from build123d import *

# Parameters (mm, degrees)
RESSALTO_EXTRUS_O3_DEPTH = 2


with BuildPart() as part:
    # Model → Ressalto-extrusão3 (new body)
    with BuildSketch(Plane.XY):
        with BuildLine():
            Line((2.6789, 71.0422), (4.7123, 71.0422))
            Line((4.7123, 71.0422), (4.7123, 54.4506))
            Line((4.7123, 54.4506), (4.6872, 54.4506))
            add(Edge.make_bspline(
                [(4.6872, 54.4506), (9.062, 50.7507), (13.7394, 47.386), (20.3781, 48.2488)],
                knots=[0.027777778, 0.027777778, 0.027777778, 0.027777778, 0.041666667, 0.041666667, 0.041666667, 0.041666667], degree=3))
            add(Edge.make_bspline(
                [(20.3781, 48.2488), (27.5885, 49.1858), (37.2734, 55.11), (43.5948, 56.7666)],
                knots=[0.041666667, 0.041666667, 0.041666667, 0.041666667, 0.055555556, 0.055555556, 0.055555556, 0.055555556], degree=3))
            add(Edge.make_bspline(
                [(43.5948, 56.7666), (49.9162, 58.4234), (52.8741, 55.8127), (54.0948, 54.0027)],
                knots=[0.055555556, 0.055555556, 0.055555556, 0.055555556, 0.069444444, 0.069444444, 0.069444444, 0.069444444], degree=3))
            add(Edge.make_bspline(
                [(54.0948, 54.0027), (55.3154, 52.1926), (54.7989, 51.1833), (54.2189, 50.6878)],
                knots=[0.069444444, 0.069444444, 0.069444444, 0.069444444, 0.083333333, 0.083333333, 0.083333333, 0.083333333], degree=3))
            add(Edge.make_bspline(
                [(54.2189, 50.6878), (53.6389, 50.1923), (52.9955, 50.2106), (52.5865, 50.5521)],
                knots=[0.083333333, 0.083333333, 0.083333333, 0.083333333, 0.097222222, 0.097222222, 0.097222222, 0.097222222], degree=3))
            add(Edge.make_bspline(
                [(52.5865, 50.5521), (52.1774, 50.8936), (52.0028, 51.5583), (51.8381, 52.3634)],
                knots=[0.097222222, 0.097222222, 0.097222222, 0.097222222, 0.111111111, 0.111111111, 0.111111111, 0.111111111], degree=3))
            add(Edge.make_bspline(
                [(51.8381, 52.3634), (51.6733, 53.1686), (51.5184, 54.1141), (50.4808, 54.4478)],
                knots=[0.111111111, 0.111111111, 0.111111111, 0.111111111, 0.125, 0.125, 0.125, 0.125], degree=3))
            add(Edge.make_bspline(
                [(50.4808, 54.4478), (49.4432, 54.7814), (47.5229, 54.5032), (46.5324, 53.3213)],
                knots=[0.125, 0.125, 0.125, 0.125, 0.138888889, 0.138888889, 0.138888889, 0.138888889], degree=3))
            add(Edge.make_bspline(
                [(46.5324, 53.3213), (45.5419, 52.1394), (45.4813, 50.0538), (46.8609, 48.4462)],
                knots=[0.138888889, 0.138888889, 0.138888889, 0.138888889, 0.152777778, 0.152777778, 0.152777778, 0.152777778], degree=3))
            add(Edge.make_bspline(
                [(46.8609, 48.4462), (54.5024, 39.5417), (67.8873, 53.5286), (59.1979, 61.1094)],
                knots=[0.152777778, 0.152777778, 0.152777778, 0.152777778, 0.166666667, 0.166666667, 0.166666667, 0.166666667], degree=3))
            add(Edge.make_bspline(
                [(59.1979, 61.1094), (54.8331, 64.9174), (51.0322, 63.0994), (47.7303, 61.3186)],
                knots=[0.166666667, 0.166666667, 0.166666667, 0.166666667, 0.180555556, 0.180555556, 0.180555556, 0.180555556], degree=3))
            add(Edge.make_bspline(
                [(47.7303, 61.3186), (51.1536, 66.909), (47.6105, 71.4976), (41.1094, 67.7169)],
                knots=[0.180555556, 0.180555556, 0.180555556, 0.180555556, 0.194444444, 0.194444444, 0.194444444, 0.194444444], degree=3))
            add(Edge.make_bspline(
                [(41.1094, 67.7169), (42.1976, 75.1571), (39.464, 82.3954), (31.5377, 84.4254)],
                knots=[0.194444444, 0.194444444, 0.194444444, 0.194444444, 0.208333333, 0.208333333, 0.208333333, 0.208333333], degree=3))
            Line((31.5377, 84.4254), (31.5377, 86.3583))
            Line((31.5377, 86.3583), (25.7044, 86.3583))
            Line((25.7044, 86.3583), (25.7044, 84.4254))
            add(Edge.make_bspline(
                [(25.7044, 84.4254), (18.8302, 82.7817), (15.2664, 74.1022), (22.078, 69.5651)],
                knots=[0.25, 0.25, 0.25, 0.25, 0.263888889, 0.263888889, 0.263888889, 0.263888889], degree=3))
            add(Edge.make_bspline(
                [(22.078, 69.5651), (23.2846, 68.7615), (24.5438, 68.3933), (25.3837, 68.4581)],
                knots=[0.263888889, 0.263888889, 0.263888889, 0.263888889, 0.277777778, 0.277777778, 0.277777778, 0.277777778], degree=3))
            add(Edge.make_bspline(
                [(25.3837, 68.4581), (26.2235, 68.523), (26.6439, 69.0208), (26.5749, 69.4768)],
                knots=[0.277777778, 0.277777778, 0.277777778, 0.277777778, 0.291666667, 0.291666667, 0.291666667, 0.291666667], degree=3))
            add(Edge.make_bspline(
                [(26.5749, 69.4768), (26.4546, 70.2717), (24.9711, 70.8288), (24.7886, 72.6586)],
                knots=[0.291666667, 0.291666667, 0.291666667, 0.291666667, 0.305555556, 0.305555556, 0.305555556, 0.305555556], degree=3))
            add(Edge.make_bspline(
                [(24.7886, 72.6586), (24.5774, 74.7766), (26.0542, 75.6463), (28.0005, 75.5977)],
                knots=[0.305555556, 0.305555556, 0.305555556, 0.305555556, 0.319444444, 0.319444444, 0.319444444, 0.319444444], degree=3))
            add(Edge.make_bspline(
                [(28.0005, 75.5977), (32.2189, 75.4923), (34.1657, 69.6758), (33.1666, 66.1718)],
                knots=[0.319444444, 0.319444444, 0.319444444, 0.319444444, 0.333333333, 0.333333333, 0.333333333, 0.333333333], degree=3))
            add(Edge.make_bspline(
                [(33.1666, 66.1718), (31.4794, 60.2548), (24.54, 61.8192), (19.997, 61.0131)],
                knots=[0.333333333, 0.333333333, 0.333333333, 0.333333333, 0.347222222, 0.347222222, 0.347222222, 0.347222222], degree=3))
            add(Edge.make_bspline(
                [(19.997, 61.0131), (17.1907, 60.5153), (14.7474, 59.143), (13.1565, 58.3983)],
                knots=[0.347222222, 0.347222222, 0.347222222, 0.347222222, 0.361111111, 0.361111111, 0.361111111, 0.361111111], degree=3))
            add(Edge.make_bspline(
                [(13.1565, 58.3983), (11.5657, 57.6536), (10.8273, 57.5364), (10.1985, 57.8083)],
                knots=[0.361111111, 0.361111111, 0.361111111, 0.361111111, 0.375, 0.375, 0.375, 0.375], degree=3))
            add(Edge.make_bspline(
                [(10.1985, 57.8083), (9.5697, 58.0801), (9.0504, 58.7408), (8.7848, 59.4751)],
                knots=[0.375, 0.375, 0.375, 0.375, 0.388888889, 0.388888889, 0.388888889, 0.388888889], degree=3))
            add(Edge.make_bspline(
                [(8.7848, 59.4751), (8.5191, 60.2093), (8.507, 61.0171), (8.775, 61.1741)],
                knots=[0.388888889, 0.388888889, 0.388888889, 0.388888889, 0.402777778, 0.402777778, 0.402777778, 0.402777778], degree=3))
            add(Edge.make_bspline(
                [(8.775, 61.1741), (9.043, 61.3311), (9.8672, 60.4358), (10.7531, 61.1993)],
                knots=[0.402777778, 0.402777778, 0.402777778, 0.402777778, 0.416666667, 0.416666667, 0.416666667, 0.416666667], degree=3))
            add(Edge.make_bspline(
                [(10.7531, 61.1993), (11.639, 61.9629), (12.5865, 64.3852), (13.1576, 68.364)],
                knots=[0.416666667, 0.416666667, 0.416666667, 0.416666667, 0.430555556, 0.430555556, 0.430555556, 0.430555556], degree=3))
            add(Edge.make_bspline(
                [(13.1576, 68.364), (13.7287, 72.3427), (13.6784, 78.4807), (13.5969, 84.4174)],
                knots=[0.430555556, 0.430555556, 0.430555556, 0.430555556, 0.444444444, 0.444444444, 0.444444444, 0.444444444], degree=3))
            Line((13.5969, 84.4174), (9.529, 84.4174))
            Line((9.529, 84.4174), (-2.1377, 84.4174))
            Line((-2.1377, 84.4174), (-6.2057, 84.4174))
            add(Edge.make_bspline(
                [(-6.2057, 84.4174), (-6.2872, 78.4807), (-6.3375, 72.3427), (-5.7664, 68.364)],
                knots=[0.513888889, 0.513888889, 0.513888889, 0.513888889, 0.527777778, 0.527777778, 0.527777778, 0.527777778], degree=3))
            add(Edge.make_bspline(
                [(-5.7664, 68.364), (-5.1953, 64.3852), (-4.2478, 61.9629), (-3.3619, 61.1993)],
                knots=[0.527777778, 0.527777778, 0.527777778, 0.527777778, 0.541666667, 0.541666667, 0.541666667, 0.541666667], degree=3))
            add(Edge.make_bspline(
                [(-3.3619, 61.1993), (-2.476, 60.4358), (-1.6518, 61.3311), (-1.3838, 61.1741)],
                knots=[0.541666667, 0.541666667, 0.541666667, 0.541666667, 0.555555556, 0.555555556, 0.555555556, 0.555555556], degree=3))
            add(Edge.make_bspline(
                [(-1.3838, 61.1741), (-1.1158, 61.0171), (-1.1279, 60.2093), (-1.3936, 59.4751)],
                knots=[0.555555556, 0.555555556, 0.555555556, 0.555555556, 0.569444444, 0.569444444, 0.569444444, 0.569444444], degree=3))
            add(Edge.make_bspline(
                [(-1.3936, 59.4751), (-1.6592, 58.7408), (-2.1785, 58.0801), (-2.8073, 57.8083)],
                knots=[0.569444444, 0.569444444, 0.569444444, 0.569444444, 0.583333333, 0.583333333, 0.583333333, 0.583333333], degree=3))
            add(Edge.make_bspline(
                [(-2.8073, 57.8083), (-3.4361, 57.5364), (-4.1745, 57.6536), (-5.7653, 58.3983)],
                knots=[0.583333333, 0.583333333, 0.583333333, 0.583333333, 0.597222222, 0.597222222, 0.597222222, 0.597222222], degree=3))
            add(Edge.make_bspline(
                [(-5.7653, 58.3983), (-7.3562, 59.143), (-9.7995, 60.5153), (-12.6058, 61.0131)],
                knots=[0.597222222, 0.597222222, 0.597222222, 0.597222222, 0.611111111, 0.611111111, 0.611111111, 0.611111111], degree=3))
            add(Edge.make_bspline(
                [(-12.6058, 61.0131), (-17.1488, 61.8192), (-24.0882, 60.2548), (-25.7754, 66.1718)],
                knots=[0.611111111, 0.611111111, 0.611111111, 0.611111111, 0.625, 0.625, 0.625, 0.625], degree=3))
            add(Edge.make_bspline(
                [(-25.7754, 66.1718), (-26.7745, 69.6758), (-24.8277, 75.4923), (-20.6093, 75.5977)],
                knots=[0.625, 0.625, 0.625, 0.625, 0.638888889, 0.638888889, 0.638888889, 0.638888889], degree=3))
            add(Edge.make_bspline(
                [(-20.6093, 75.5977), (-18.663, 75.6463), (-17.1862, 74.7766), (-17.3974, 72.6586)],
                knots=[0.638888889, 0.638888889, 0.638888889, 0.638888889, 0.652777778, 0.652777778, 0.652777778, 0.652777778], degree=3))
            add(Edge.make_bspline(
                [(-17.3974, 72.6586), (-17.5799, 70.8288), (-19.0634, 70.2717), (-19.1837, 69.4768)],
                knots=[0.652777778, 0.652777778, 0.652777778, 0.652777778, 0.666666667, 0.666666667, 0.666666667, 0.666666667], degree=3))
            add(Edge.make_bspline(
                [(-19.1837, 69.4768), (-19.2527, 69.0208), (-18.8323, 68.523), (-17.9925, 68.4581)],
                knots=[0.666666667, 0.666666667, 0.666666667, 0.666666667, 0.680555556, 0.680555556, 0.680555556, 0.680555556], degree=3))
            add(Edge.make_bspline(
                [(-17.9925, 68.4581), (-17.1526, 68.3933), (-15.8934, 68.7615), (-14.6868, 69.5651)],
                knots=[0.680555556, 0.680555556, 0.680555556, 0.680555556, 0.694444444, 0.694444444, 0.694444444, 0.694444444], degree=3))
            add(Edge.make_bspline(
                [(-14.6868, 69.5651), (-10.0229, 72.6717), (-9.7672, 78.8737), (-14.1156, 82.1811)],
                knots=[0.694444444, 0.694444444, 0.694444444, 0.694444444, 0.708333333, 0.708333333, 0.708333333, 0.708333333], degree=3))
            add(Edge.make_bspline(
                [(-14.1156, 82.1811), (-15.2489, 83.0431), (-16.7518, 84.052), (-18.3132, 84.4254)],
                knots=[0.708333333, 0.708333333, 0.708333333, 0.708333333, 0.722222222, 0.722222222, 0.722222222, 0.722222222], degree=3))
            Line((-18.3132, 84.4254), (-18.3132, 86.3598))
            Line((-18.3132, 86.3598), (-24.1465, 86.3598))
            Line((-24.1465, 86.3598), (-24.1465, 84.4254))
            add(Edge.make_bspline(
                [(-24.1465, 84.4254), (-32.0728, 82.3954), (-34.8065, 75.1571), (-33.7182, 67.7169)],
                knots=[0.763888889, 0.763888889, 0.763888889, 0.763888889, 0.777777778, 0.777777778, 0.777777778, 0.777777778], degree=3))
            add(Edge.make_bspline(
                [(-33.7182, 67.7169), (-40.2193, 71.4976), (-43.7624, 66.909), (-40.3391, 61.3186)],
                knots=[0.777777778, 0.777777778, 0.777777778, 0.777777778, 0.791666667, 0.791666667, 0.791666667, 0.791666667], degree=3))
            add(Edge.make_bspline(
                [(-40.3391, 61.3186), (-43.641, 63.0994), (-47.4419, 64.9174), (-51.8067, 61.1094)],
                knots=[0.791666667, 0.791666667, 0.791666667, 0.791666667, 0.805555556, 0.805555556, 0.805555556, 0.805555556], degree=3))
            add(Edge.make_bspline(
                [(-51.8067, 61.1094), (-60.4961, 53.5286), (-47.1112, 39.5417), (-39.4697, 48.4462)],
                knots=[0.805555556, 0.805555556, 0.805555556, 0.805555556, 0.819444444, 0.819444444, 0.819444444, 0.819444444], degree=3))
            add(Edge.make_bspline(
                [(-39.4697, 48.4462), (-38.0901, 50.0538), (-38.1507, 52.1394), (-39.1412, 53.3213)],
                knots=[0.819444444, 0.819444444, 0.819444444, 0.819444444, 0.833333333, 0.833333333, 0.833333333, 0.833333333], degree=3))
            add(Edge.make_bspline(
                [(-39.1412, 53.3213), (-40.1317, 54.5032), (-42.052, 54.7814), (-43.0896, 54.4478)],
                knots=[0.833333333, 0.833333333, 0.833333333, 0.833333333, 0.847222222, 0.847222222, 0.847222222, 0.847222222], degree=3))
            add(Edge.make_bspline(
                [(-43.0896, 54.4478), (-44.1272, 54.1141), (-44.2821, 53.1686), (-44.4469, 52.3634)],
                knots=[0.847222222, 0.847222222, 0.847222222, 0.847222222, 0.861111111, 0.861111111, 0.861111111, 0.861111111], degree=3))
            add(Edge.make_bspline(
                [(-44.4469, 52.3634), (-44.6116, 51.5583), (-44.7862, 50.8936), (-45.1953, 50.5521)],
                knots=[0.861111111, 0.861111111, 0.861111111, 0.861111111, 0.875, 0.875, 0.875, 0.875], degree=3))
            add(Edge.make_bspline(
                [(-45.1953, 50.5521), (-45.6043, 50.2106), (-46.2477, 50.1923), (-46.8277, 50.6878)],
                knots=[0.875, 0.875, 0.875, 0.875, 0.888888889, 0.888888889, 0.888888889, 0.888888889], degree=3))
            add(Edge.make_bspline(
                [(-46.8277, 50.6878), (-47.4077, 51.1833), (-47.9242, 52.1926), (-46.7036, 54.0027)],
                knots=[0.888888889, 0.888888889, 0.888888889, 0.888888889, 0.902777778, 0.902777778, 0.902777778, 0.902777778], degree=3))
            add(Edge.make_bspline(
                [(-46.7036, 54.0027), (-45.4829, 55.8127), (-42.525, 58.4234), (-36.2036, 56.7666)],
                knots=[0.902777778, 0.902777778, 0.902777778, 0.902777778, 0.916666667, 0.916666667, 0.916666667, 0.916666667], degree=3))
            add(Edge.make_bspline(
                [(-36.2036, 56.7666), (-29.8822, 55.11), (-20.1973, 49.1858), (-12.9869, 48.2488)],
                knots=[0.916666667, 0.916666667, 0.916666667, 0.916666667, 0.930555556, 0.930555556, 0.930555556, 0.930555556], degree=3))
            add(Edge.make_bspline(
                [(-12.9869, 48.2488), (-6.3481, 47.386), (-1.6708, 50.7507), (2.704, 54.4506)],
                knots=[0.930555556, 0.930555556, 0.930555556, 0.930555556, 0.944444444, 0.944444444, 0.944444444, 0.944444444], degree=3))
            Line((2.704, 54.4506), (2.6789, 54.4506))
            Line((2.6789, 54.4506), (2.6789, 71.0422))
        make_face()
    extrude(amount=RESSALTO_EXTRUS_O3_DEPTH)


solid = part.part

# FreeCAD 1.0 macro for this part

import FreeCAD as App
import Part
import Sketcher
from FreeCAD import Vector
Q = App.Units.Quantity

doc = App.newDocument("Part")
body = doc.addObject("PartDesign::Body", "Body")

sketch1 = doc.addObject("Sketcher::SketchObject", "Sketch")
body.addObject(sketch1)
sketch1.AttachmentSupport = (doc.XY_Plane, [""])
sketch1.MapMode = "FlatFace"
sketch1.addGeometry([
    Part.LineSegment(Vector(2.6789, 71.0422, 0), Vector(4.7123, 71.0422, 0)),
    Part.LineSegment(Vector(4.7123, 71.0422, 0), Vector(4.7123, 54.4506, 0)),
    Part.LineSegment(Vector(4.7123, 54.4506, 0), Vector(4.6872, 54.4506, 0)),
    Part.BSplineCurve([Vector(4.6872, 54.4506, 0), Vector(9.062, 50.7507, 0), Vector(13.7394, 47.386, 0), Vector(20.3781, 48.2488, 0)], [4, 4], [0.027777778, 0.041666667], False, 3, [1, 1, 1, 1], False),
    Part.BSplineCurve([Vector(20.3781, 48.2488, 0), Vector(27.5885, 49.1858, 0), Vector(37.2734, 55.11, 0), Vector(43.5948, 56.7666, 0)], [4, 4], [0.041666667, 0.055555556], False, 3, [1, 1, 1, 1], False),
    Part.BSplineCurve([Vector(43.5948, 56.7666, 0), Vector(49.9162, 58.4234, 0), Vector(52.8741, 55.8127, 0), Vector(54.0948, 54.0027, 0)], [4, 4], [0.055555556, 0.069444444], False, 3, [1, 1, 1, 1], False),
    Part.BSplineCurve([Vector(54.0948, 54.0027, 0), Vector(55.3154, 52.1926, 0), Vector(54.7989, 51.1833, 0), Vector(53.6389, 50.1923, 0), Vector(52.9955, 50.2106, 0), Vector(52.5865, 50.5521, 0)], [4, 2, 4], [0.069444444, 0.083333333, 0.097222222], False, 3, [1, 1, 1, 1, 1, 1], False),
    Part.BSplineCurve([Vector(52.5865, 50.5521, 0), Vector(52.1774, 50.8936, 0), Vector(52.0028, 51.5583, 0), Vector(51.8381, 52.3634, 0)], [4, 4], [0.097222222, 0.111111111], False, 3, [1, 1, 1, 1], False),
    Part.BSplineCurve([Vector(51.8381, 52.3634, 0), Vector(51.6733, 53.1686, 0), Vector(51.5184, 54.1141, 0), Vector(50.4808, 54.4478, 0)], [4, 4], [0.111111111, 0.125], False, 3, [1, 1, 1, 1], False),
    Part.BSplineCurve([Vector(50.4808, 54.4478, 0), Vector(49.4432, 54.7814, 0), Vector(47.5229, 54.5032, 0), Vector(45.5419, 52.1394, 0), Vector(45.4813, 50.0538, 0), Vector(46.8609, 48.4462, 0)], [4, 2, 4], [0.125, 0.138888889, 0.152777778], False, 3, [1, 1, 1, 1, 1, 1], False),
    Part.BSplineCurve([Vector(46.8609, 48.4462, 0), Vector(54.5024, 39.5417, 0), Vector(67.8873, 53.5286, 0), Vector(59.1979, 61.1094, 0)], [4, 4], [0.152777778, 0.166666667], False, 3, [1, 1, 1, 1], False),
    Part.BSplineCurve([Vector(59.1979, 61.1094, 0), Vector(54.8331, 64.9174, 0), Vector(51.0322, 63.0994, 0), Vector(47.7303, 61.3186, 0)], [4, 4], [0.166666667, 0.180555556], False, 3, [1, 1, 1, 1], False),
    Part.BSplineCurve([Vector(47.7303, 61.3186, 0), Vector(51.1536, 66.909, 0), Vector(47.6105, 71.4976, 0), Vector(41.1094, 67.7169, 0)], [4, 4], [0.180555556, 0.194444444], False, 3, [1, 1, 1, 1], False),
    Part.BSplineCurve([Vector(41.1094, 67.7169, 0), Vector(42.1976, 75.1571, 0), Vector(39.464, 82.3954, 0), Vector(31.5377, 84.4254, 0)], [4, 4], [0.194444444, 0.208333333], False, 3, [1, 1, 1, 1], False),
    Part.LineSegment(Vector(31.5377, 84.4254, 0), Vector(31.5377, 86.3583, 0)),
    Part.LineSegment(Vector(31.5377, 86.3583, 0), Vector(25.7044, 86.3583, 0)),
    Part.LineSegment(Vector(25.7044, 86.3583, 0), Vector(25.7044, 84.4254, 0)),
    Part.BSplineCurve([Vector(25.7044, 84.4254, 0), Vector(18.8302, 82.7817, 0), Vector(15.2664, 74.1022, 0), Vector(22.078, 69.5651, 0)], [4, 4], [0.25, 0.263888889], False, 3, [1, 1, 1, 1], False),
    Part.BSplineCurve([Vector(22.078, 69.5651, 0), Vector(23.2846, 68.7615, 0), Vector(24.5438, 68.3933, 0), Vector(25.3837, 68.4581, 0)], [4, 4], [0.263888889, 0.277777778], False, 3, [1, 1, 1, 1], False),
    Part.BSplineCurve([Vector(25.3837, 68.4581, 0), Vector(26.2235, 68.523, 0), Vector(26.6439, 69.0208, 0), Vector(26.5749, 69.4768, 0)], [4, 4], [0.277777778, 0.291666667], False, 3, [1, 1, 1, 1], False),
    Part.BSplineCurve([Vector(26.5749, 69.4768, 0), Vector(26.4546, 70.2717, 0), Vector(24.9711, 70.8288, 0), Vector(24.7886, 72.6586, 0)], [4, 4], [0.291666667, 0.305555556], False, 3, [1, 1, 1, 1], False),
    Part.BSplineCurve([Vector(24.7886, 72.6586, 0), Vector(24.5774, 74.7766, 0), Vector(26.0542, 75.6463, 0), Vector(28.0005, 75.5977, 0)], [4, 4], [0.305555556, 0.319444444], False, 3, [1, 1, 1, 1], False),
    Part.BSplineCurve([Vector(28.0005, 75.5977, 0), Vector(32.2189, 75.4923, 0), Vector(34.1657, 69.6758, 0), Vector(33.1666, 66.1718, 0)], [4, 4], [0.319444444, 0.333333333], False, 3, [1, 1, 1, 1], False),
    Part.BSplineCurve([Vector(33.1666, 66.1718, 0), Vector(31.4794, 60.2548, 0), Vector(24.54, 61.8192, 0), Vector(19.997, 61.0131, 0)], [4, 4], [0.333333333, 0.347222222], False, 3, [1, 1, 1, 1], False),
    Part.BSplineCurve([Vector(19.997, 61.0131, 0), Vector(17.1907, 60.5153, 0), Vector(14.7474, 59.143, 0), Vector(13.1565, 58.3983, 0)], [4, 4], [0.347222222, 0.361111111], False, 3, [1, 1, 1, 1], False),
    Part.BSplineCurve([Vector(13.1565, 58.3983, 0), Vector(11.5657, 57.6536, 0), Vector(10.8273, 57.5364, 0), Vector(10.1985, 57.8083, 0)], [4, 4], [0.361111111, 0.375], False, 3, [1, 1, 1, 1], False),
    Part.BSplineCurve([Vector(10.1985, 57.8083, 0), Vector(9.5697, 58.0801, 0), Vector(9.0504, 58.7408, 0), Vector(8.7848, 59.4751, 0)], [4, 4], [0.375, 0.388888889], False, 3, [1, 1, 1, 1], False),
    Part.BSplineCurve([Vector(8.7848, 59.4751, 0), Vector(8.5191, 60.2093, 0), Vector(8.507, 61.0171, 0), Vector(9.043, 61.3311, 0), Vector(9.8672, 60.4358, 0), Vector(10.7531, 61.1993, 0)], [4, 2, 4], [0.388888889, 0.402777778, 0.416666667], False, 3, [1, 1, 1, 1, 1, 1], False),
    Part.BSplineCurve([Vector(10.7531, 61.1993, 0), Vector(11.639, 61.9629, 0), Vector(12.5865, 64.3852, 0), Vector(13.1576, 68.364, 0)], [4, 4], [0.416666667, 0.430555556], False, 3, [1, 1, 1, 1], False),
    Part.BSplineCurve([Vector(13.1576, 68.364, 0), Vector(13.7287, 72.3427, 0), Vector(13.6784, 78.4807, 0), Vector(13.5969, 84.4174, 0)], [4, 4], [0.430555556, 0.444444444], False, 3, [1, 1, 1, 1], False),
    Part.LineSegment(Vector(13.5969, 84.4174, 0), Vector(-6.2057, 84.4174, 0)),
    Part.BSplineCurve([Vector(-6.2057, 84.4174, 0), Vector(-6.2872, 78.4807, 0), Vector(-6.3375, 72.3427, 0), Vector(-5.7664, 68.364, 0)], [4, 4], [0.513888889, 0.527777778], False, 3, [1, 1, 1, 1], False),
    Part.BSplineCurve([Vector(-5.7664, 68.364, 0), Vector(-5.1953, 64.3852, 0), Vector(-4.2478, 61.9629, 0), Vector(-3.3619, 61.1993, 0)], [4, 4], [0.527777778, 0.541666667], False, 3, [1, 1, 1, 1], False),
    Part.BSplineCurve([Vector(-3.3619, 61.1993, 0), Vector(-2.476, 60.4358, 0), Vector(-1.6518, 61.3311, 0), Vector(-1.1158, 61.0171, 0), Vector(-1.1279, 60.2093, 0), Vector(-1.3936, 59.4751, 0)], [4, 2, 4], [0.541666667, 0.555555556, 0.569444445], False, 3, [1, 1, 1, 1, 1, 1], False),
    Part.BSplineCurve([Vector(-1.3936, 59.4751, 0), Vector(-1.6592, 58.7408, 0), Vector(-2.1785, 58.0801, 0), Vector(-2.8073, 57.8083, 0)], [4, 4], [0.569444444, 0.583333333], False, 3, [1, 1, 1, 1], False),
    Part.BSplineCurve([Vector(-2.8073, 57.8083, 0), Vector(-3.4361, 57.5364, 0), Vector(-4.1745, 57.6536, 0), Vector(-5.7653, 58.3983, 0)], [4, 4], [0.583333333, 0.597222222], False, 3, [1, 1, 1, 1], False),
    Part.BSplineCurve([Vector(-5.7653, 58.3983, 0), Vector(-7.3562, 59.143, 0), Vector(-9.7995, 60.5153, 0), Vector(-12.6058, 61.0131, 0)], [4, 4], [0.597222222, 0.611111111], False, 3, [1, 1, 1, 1], False),
    Part.BSplineCurve([Vector(-12.6058, 61.0131, 0), Vector(-17.1488, 61.8192, 0), Vector(-24.0882, 60.2548, 0), Vector(-25.7754, 66.1718, 0)], [4, 4], [0.611111111, 0.625], False, 3, [1, 1, 1, 1], False),
    Part.BSplineCurve([Vector(-25.7754, 66.1718, 0), Vector(-26.7745, 69.6758, 0), Vector(-24.8277, 75.4923, 0), Vector(-20.6093, 75.5977, 0)], [4, 4], [0.625, 0.638888889], False, 3, [1, 1, 1, 1], False),
    Part.BSplineCurve([Vector(-20.6093, 75.5977, 0), Vector(-18.663, 75.6463, 0), Vector(-17.1862, 74.7766, 0), Vector(-17.3974, 72.6586, 0)], [4, 4], [0.638888889, 0.652777778], False, 3, [1, 1, 1, 1], False),
    Part.BSplineCurve([Vector(-17.3974, 72.6586, 0), Vector(-17.5799, 70.8288, 0), Vector(-19.0634, 70.2717, 0), Vector(-19.1837, 69.4768, 0)], [4, 4], [0.652777778, 0.666666667], False, 3, [1, 1, 1, 1], False),
    Part.BSplineCurve([Vector(-19.1837, 69.4768, 0), Vector(-19.2527, 69.0208, 0), Vector(-18.8323, 68.523, 0), Vector(-17.9925, 68.4581, 0)], [4, 4], [0.666666667, 0.680555556], False, 3, [1, 1, 1, 1], False),
    Part.BSplineCurve([Vector(-17.9925, 68.4581, 0), Vector(-17.1526, 68.3933, 0), Vector(-15.8934, 68.7615, 0), Vector(-14.6868, 69.5651, 0)], [4, 4], [0.680555556, 0.694444444], False, 3, [1, 1, 1, 1], False),
    Part.BSplineCurve([Vector(-14.6868, 69.5651, 0), Vector(-10.0229, 72.6717, 0), Vector(-9.7672, 78.8737, 0), Vector(-14.1156, 82.1811, 0)], [4, 4], [0.694444444, 0.708333333], False, 3, [1, 1, 1, 1], False),
    Part.BSplineCurve([Vector(-14.1156, 82.1811, 0), Vector(-15.2489, 83.0431, 0), Vector(-16.7518, 84.052, 0), Vector(-18.3132, 84.4254, 0)], [4, 4], [0.708333333, 0.722222222], False, 3, [1, 1, 1, 1], False),
    Part.LineSegment(Vector(-18.3132, 84.4254, 0), Vector(-18.3132, 86.3598, 0)),
    Part.LineSegment(Vector(-18.3132, 86.3598, 0), Vector(-24.1465, 86.3598, 0)),
    Part.LineSegment(Vector(-24.1465, 86.3598, 0), Vector(-24.1465, 84.4254, 0)),
    Part.BSplineCurve([Vector(-24.1465, 84.4254, 0), Vector(-32.0728, 82.3954, 0), Vector(-34.8065, 75.1571, 0), Vector(-33.7182, 67.7169, 0)], [4, 4], [0.763888889, 0.777777778], False, 3, [1, 1, 1, 1], False),
    Part.BSplineCurve([Vector(-33.7182, 67.7169, 0), Vector(-40.2193, 71.4976, 0), Vector(-43.7624, 66.909, 0), Vector(-40.3391, 61.3186, 0)], [4, 4], [0.777777778, 0.791666667], False, 3, [1, 1, 1, 1], False),
    Part.BSplineCurve([Vector(-40.3391, 61.3186, 0), Vector(-43.641, 63.0994, 0), Vector(-47.4419, 64.9174, 0), Vector(-51.8067, 61.1094, 0)], [4, 4], [0.791666667, 0.805555556], False, 3, [1, 1, 1, 1], False),
    Part.BSplineCurve([Vector(-51.8067, 61.1094, 0), Vector(-60.4961, 53.5286, 0), Vector(-47.1112, 39.5417, 0), Vector(-39.4697, 48.4462, 0)], [4, 4], [0.805555556, 0.819444444], False, 3, [1, 1, 1, 1], False),
    Part.BSplineCurve([Vector(-39.4697, 48.4462, 0), Vector(-38.0901, 50.0538, 0), Vector(-38.1507, 52.1394, 0), Vector(-40.1317, 54.5032, 0), Vector(-42.052, 54.7814, 0), Vector(-43.0896, 54.4478, 0)], [4, 2, 4], [0.819444444, 0.833333333, 0.847222222], False, 3, [1, 1, 1, 1, 1, 1], False),
    Part.BSplineCurve([Vector(-43.0896, 54.4478, 0), Vector(-44.1272, 54.1141, 0), Vector(-44.2821, 53.1686, 0), Vector(-44.4469, 52.3634, 0)], [4, 4], [0.847222222, 0.861111111], False, 3, [1, 1, 1, 1], False),
    Part.BSplineCurve([Vector(-44.4469, 52.3634, 0), Vector(-44.6116, 51.5583, 0), Vector(-44.7862, 50.8936, 0), Vector(-45.1953, 50.5521, 0)], [4, 4], [0.861111111, 0.875], False, 3, [1, 1, 1, 1], False),
    Part.BSplineCurve([Vector(-45.1953, 50.5521, 0), Vector(-45.6043, 50.2106, 0), Vector(-46.2477, 50.1923, 0), Vector(-47.4077, 51.1833, 0), Vector(-47.9242, 52.1926, 0), Vector(-46.7036, 54.0027, 0)], [4, 2, 4], [0.875, 0.888888889, 0.902777778], False, 3, [1, 1, 1, 1, 1, 1], False),
    Part.BSplineCurve([Vector(-46.7036, 54.0027, 0), Vector(-45.4829, 55.8127, 0), Vector(-42.525, 58.4234, 0), Vector(-36.2036, 56.7666, 0)], [4, 4], [0.902777778, 0.916666667], False, 3, [1, 1, 1, 1], False),
    Part.BSplineCurve([Vector(-36.2036, 56.7666, 0), Vector(-29.8822, 55.11, 0), Vector(-20.1973, 49.1858, 0), Vector(-12.9869, 48.2488, 0)], [4, 4], [0.916666667, 0.930555556], False, 3, [1, 1, 1, 1], False),
    Part.BSplineCurve([Vector(-12.9869, 48.2488, 0), Vector(-6.3481, 47.386, 0), Vector(-1.6708, 50.7507, 0), Vector(2.704, 54.4506, 0)], [4, 4], [0.930555556, 0.944444444], False, 3, [1, 1, 1, 1], False),
    Part.LineSegment(Vector(2.704, 54.4506, 0), Vector(2.6789, 54.4506, 0)),
    Part.LineSegment(Vector(2.6789, 54.4506, 0), Vector(2.6789, 71.0422, 0)),
], False)
sketch1.addConstraint([
    Sketcher.Constraint("Block", 3),
    Sketcher.Constraint("Block", 4),
    Sketcher.Constraint("Block", 5),
    Sketcher.Constraint("Block", 6),
    Sketcher.Constraint("Block", 7),
    Sketcher.Constraint("Block", 8),
    Sketcher.Constraint("Block", 9),
    Sketcher.Constraint("Block", 10),
    Sketcher.Constraint("Block", 11),
    Sketcher.Constraint("Block", 12),
    Sketcher.Constraint("Block", 13),
    Sketcher.Constraint("Block", 17),
    Sketcher.Constraint("Block", 18),
    Sketcher.Constraint("Block", 19),
    Sketcher.Constraint("Block", 20),
    Sketcher.Constraint("Block", 21),
    Sketcher.Constraint("Block", 22),
    Sketcher.Constraint("Block", 23),
    Sketcher.Constraint("Block", 24),
    Sketcher.Constraint("Block", 25),
    Sketcher.Constraint("Block", 26),
    Sketcher.Constraint("Block", 27),
    Sketcher.Constraint("Block", 28),
    Sketcher.Constraint("Block", 29),
    Sketcher.Constraint("Block", 31),
    Sketcher.Constraint("Block", 32),
    Sketcher.Constraint("Block", 33),
    Sketcher.Constraint("Block", 34),
    Sketcher.Constraint("Block", 35),
    Sketcher.Constraint("Block", 36),
    Sketcher.Constraint("Block", 37),
    Sketcher.Constraint("Block", 38),
    Sketcher.Constraint("Block", 39),
    Sketcher.Constraint("Block", 40),
    Sketcher.Constraint("Block", 41),
    Sketcher.Constraint("Block", 42),
    Sketcher.Constraint("Block", 43),
    Sketcher.Constraint("Block", 44),
    Sketcher.Constraint("Block", 48),
    Sketcher.Constraint("Block", 49),
    Sketcher.Constraint("Block", 50),
    Sketcher.Constraint("Block", 51),
    Sketcher.Constraint("Block", 52),
    Sketcher.Constraint("Block", 53),
    Sketcher.Constraint("Block", 54),
    Sketcher.Constraint("Block", 55),
    Sketcher.Constraint("Block", 56),
    Sketcher.Constraint("Block", 57),
    Sketcher.Constraint("Block", 58),
    Sketcher.Constraint("Coincident", 0, 2, 1, 1),
    Sketcher.Constraint("Coincident", 1, 2, 2, 1),
    Sketcher.Constraint("Coincident", 2, 2, 3, 1),
    Sketcher.Constraint("Coincident", 13, 2, 14, 1),
    Sketcher.Constraint("Coincident", 14, 2, 15, 1),
    Sketcher.Constraint("Coincident", 15, 2, 16, 1),
    Sketcher.Constraint("Coincident", 16, 2, 17, 1),
    Sketcher.Constraint("Coincident", 29, 2, 30, 1),
    Sketcher.Constraint("Coincident", 30, 2, 31, 1),
    Sketcher.Constraint("Coincident", 44, 2, 45, 1),
    Sketcher.Constraint("Coincident", 45, 2, 46, 1),
    Sketcher.Constraint("Coincident", 46, 2, 47, 1),
    Sketcher.Constraint("Coincident", 47, 2, 48, 1),
    Sketcher.Constraint("Coincident", 58, 2, 59, 1),
    Sketcher.Constraint("Coincident", 59, 2, 60, 1),
    Sketcher.Constraint("Coincident", 60, 2, 0, 1),
    Sketcher.Constraint("Horizontal", 0),
    Sketcher.Constraint("Vertical", 1),
    Sketcher.Constraint("Horizontal", 2),
    Sketcher.Constraint("Vertical", 14),
    Sketcher.Constraint("Horizontal", 15),
    Sketcher.Constraint("Vertical", 16),
    Sketcher.Constraint("Vertical", 45),
    Sketcher.Constraint("Horizontal", 46),
    Sketcher.Constraint("Vertical", 47),
    Sketcher.Constraint("Horizontal", 59),
    Sketcher.Constraint("Vertical", 60),
    Sketcher.Constraint("Equal", 2, 59),
    Sketcher.Constraint("DistanceX", 0, 1, 0, 2, Q("2.0334 mm")),
    Sketcher.Constraint("DistanceY", 1, 2, 1, 1, Q("16.5916 mm")),
    Sketcher.Constraint("DistanceY", 14, 1, 14, 2, Q("1.9329 mm")),
    Sketcher.Constraint("DistanceY", 45, 1, 45, 2, Q("1.9344 mm")),
])
pad1 = doc.addObject("PartDesign::Pad", "Pad")
body.addObject(pad1)
pad1.Profile = sketch1
pad1.Length = 2

doc.recompute()
